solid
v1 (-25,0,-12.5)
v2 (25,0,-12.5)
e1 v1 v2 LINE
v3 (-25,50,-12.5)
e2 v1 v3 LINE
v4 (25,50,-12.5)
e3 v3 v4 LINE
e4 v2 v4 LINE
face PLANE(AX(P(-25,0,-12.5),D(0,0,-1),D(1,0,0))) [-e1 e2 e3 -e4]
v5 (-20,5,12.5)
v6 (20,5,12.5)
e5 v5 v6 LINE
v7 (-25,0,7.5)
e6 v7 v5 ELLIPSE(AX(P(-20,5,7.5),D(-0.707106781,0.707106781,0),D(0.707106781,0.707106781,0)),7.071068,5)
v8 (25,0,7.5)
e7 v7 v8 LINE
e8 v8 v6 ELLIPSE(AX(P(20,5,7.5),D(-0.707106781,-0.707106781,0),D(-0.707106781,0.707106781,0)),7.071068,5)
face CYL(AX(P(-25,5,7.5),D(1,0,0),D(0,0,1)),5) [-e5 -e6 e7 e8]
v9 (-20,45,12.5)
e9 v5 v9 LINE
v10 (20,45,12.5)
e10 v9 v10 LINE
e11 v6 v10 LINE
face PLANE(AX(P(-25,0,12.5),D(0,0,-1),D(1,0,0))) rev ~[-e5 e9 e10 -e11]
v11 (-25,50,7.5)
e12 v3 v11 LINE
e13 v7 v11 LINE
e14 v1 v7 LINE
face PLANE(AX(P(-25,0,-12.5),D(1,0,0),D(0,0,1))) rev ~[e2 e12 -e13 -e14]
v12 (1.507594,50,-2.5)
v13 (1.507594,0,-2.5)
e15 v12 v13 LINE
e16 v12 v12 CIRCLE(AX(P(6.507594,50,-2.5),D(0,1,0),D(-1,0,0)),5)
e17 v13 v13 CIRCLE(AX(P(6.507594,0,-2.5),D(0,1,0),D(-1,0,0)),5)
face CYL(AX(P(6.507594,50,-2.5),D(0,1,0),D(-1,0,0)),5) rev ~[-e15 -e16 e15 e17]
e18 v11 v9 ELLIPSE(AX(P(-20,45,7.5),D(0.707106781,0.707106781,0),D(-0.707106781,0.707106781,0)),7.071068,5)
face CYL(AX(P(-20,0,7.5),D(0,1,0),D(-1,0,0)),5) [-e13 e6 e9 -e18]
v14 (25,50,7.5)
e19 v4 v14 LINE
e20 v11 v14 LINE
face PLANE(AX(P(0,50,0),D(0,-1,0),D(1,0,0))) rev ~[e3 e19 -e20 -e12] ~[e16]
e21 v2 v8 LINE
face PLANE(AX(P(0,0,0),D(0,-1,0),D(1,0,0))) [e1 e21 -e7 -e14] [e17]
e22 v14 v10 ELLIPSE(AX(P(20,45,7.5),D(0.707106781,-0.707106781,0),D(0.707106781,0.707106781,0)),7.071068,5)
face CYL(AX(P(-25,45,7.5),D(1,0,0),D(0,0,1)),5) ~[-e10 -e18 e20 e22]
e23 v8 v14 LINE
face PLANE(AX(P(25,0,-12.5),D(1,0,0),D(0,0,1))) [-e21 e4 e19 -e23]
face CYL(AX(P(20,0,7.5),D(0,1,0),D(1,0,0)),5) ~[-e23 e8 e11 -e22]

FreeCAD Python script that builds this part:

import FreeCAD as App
import Part
import Sketcher


def edges_at(feature, points):
    """Names of the edges that pass closest to the given points."""
    edges = feature.Shape.Edges
    near = lambda p: min(range(len(edges)), key=lambda i: edges[i].distToShape(Part.Vertex(*p))[0])
    return sorted({f"Edge{near(p) + 1}" for p in points})

doc = App.newDocument("Part")
body = doc.addObject("PartDesign::Body", "Body")

# Sketch on XZ plane
sketch1 = body.newObject("Sketcher::SketchObject", "Sketch")
sketch1.AttachmentSupport = (doc.getObject("XZ_Plane"), [""])
sketch1.MapMode = "FlatFace"
sketch1.addGeometry([
    Part.LineSegment(App.Vector(-25, 12, 0), App.Vector(-25, -12, 0)),
    Part.LineSegment(App.Vector(-25, -12, 0), App.Vector(25, -12, 0)),
    Part.LineSegment(App.Vector(25, -12, 0), App.Vector(25, 12, 0)),
    Part.LineSegment(App.Vector(25, 12, 0), App.Vector(-25, 12, 0)),
], False)
sketch1.addConstraint([
    Sketcher.Constraint("Coincident", 0, 2, 1, 1),
    Sketcher.Constraint("Coincident", 1, 2, 2, 1),
    Sketcher.Constraint("Coincident", 2, 2, 3, 1),
    Sketcher.Constraint("Coincident", 3, 2, 0, 1),
    Sketcher.Constraint("Vertical", 0),
    Sketcher.Constraint("Horizontal", 1),
    Sketcher.Constraint("Vertical", 2),
    Sketcher.Constraint("Horizontal", 3),
    Sketcher.Constraint("Symmetric", 0, 2, 2, 2, -1, 1),
    Sketcher.Constraint("DistanceX", 1, 1, 1, 2, 50.0),
    Sketcher.Constraint("DistanceY", 0, 2, 0, 1, 25.0),
])
pad1 = body.newObject("PartDesign::Pad", "Pad")
pad1.Profile = sketch1
pad1.Length = 50
pad1.Reversed = True
doc.recompute()

fillet = body.newObject("PartDesign::Fillet", "Fillet")
fillet.Base = (pad1, edges_at(pad1, [
    (-25, 25, 12.5),
    (25, 25, 12.5),
    (0, 0, 12.5),
    (0, 50, 12.5),
]))
fillet.Radius = 5

# Sketch on XZ plane
sketch2 = body.newObject("Sketcher::SketchObject", "Sketch001")
sketch2.AttachmentSupport = (doc.getObject("XZ_Plane"), [""])
sketch2.MapMode = "FlatFace"
sketch2.AttachmentOffset = App.Placement(App.Vector(0, 0, -50), App.Rotation())
sketch2.addGeometry(Part.Circle(App.Vector(7, -2, 0), App.Vector(0, 0, 1), 5), False)
sketch2.addConstraint([
    Sketcher.Constraint("Diameter", 0, 10.0),
    Sketcher.Constraint("DistanceY", 0, 3, -1, 1, 2.5),
    Sketcher.Constraint("DistanceX", -1, 1, 0, 3, 6.507594),
])
pocket1 = body.newObject("PartDesign::Pocket", "Pocket")
pocket1.Profile = sketch2
pocket1.Type = "ThroughAll"
pocket1.Reversed = True

doc.recompute()
